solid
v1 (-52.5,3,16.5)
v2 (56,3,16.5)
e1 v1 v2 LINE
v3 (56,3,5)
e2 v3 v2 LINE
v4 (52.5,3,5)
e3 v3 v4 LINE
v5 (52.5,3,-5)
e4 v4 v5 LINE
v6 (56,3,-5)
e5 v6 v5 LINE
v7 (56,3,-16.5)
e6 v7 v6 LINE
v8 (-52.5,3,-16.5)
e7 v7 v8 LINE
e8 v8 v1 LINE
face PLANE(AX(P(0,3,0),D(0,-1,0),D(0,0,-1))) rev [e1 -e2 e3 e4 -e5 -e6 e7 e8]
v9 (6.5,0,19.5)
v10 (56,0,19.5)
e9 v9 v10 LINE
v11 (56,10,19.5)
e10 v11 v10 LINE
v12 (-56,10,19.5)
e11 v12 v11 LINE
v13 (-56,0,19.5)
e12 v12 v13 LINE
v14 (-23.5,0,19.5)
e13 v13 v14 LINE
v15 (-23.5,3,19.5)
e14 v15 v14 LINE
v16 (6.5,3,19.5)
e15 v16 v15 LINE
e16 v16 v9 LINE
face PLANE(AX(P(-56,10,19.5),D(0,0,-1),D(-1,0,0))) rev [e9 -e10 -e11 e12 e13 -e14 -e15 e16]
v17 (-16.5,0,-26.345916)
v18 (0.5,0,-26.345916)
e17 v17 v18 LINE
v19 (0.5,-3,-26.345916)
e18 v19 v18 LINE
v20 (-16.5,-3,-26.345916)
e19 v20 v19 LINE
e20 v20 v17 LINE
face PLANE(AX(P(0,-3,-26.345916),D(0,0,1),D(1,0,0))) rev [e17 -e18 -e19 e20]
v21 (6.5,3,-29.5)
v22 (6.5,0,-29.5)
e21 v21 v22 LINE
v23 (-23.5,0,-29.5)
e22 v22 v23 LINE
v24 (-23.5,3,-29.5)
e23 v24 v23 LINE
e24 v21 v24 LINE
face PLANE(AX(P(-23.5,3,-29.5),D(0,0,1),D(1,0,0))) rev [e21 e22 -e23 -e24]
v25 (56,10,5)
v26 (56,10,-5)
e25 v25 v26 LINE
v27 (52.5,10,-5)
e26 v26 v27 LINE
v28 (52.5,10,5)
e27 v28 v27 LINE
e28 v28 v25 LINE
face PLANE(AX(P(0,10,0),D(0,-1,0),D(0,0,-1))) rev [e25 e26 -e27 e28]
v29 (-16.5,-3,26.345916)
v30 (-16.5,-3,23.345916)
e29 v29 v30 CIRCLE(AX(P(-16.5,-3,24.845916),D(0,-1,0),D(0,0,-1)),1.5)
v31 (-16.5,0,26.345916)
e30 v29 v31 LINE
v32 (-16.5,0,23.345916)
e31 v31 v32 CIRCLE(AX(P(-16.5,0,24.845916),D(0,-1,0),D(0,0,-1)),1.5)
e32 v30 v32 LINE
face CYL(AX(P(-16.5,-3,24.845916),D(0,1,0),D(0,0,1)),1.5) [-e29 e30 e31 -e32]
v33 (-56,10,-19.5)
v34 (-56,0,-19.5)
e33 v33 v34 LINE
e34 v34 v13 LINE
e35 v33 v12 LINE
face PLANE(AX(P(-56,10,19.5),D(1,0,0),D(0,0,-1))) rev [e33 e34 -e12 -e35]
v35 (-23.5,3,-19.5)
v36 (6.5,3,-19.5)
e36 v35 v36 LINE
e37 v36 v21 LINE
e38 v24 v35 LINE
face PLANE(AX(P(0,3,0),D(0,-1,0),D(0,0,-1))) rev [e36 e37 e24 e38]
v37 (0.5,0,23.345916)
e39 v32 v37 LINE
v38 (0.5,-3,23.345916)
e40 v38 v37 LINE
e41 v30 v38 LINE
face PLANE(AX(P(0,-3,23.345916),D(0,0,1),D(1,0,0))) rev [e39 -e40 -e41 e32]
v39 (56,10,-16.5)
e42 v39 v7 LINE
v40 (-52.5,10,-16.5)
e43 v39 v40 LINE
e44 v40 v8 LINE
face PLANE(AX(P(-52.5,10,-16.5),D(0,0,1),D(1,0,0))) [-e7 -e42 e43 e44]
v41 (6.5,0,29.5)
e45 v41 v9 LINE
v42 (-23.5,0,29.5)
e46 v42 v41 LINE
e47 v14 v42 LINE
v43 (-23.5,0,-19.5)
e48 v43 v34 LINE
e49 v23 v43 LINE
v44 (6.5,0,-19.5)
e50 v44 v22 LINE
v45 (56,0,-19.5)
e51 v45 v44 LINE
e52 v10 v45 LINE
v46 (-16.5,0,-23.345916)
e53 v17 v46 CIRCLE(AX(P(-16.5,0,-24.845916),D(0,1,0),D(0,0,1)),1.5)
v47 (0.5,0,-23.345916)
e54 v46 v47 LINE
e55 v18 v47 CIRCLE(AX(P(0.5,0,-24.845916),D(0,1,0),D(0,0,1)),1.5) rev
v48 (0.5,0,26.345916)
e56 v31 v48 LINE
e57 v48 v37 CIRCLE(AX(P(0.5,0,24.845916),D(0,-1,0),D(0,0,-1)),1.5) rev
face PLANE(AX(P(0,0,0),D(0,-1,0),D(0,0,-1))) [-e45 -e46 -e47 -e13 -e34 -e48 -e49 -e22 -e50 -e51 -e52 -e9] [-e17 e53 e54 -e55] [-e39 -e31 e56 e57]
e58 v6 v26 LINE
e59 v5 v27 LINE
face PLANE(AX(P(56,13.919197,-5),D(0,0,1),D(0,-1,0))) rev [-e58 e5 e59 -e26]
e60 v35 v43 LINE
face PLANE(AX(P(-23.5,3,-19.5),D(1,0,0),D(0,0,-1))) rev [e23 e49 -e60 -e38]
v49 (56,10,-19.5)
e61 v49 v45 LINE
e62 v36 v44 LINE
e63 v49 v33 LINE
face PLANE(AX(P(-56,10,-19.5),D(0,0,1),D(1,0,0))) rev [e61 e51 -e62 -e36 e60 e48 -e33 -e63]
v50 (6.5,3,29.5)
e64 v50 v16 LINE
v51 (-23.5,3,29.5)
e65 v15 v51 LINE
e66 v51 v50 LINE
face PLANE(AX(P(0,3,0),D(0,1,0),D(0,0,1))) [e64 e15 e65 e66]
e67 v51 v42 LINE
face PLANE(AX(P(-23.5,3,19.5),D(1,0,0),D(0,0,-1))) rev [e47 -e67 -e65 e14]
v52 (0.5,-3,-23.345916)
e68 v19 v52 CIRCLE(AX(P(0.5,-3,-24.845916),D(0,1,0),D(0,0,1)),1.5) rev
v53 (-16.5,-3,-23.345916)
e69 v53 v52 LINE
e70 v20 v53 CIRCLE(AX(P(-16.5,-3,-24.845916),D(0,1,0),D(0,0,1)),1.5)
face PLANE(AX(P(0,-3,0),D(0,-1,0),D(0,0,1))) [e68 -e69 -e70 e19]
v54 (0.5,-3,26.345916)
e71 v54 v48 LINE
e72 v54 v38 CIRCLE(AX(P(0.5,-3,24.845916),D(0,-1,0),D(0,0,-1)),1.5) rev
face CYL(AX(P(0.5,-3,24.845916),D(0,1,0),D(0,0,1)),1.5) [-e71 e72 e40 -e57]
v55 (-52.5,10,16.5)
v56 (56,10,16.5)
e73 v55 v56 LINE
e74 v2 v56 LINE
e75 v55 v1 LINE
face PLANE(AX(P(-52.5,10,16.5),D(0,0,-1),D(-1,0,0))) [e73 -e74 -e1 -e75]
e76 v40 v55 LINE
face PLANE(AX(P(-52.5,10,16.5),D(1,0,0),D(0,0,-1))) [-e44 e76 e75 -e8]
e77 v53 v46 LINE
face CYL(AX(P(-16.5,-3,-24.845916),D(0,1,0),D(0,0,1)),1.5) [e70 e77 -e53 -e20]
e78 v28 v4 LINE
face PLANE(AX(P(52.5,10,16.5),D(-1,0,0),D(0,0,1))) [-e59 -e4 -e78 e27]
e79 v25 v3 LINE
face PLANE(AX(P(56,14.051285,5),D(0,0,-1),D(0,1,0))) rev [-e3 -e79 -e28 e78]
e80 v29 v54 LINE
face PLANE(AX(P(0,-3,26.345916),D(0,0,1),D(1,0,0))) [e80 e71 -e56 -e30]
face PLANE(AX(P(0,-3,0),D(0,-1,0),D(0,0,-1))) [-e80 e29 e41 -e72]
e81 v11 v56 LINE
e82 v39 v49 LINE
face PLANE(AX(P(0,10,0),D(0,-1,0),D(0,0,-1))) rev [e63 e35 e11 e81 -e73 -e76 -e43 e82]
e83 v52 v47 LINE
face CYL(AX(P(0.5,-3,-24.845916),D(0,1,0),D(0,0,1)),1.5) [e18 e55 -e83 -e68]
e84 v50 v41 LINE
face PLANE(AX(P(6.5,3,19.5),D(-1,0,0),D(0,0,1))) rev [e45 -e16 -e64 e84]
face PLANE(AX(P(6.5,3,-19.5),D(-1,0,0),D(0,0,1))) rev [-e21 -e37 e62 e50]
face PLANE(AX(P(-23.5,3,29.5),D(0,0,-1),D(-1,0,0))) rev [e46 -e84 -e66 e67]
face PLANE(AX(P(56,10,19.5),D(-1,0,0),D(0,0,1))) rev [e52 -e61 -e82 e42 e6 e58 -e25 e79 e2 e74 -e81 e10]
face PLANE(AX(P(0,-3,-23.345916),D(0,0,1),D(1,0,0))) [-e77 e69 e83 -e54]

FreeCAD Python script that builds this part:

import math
import FreeCAD as App
import Part
import Sketcher

V = App.Vector
Q = App.Units.Quantity

doc = App.newDocument("Part")
body = doc.addObject("PartDesign::Body", "Body")

sketch1 = body.newObject("Sketcher::SketchObject", "Sketch")
sketch1.AttachmentSupport = (doc.getObject("XZ_Plane"), [""])
sketch1.MapMode = "FlatFace"
sketch1.addGeometry(Part.LineSegment(V(-56, -20, 0), V(-56, 20, 0)), False)
sketch1.addGeometry(Part.LineSegment(V(-56, 20, 0), V(56, 20, 0)), False)
sketch1.addGeometry(Part.LineSegment(V(56, 20, 0), V(56, -20, 0)), False)
sketch1.addGeometry(Part.LineSegment(V(56, -20, 0), V(-56, -20, 0)), False)
sketch1.addGeometry(Part.LineSegment(V(52, 16, 0), V(-52, 16, 0)), False)
sketch1.addGeometry(Part.LineSegment(V(-52, 16, 0), V(-52, -16, 0)), False)
sketch1.addGeometry(Part.LineSegment(V(-52, -16, 0), V(52, -16, 0)), False)
sketch1.addGeometry(Part.LineSegment(V(52, -16, 0), V(52, 16, 0)), False)
sketch1.addConstraint(Sketcher.Constraint("Coincident", 0, 2, 1, 1))
sketch1.addConstraint(Sketcher.Constraint("Coincident", 1, 2, 2, 1))
sketch1.addConstraint(Sketcher.Constraint("Coincident", 2, 2, 3, 1))
sketch1.addConstraint(Sketcher.Constraint("Coincident", 3, 2, 0, 1))
sketch1.addConstraint(Sketcher.Constraint("Coincident", 4, 2, 5, 1))
sketch1.addConstraint(Sketcher.Constraint("Coincident", 5, 2, 6, 1))
sketch1.addConstraint(Sketcher.Constraint("Coincident", 6, 2, 7, 1))
sketch1.addConstraint(Sketcher.Constraint("Coincident", 7, 2, 4, 1))
sketch1.addConstraint(Sketcher.Constraint("Vertical", 0))
sketch1.addConstraint(Sketcher.Constraint("Horizontal", 1))
sketch1.addConstraint(Sketcher.Constraint("Vertical", 2))
sketch1.addConstraint(Sketcher.Constraint("Horizontal", 3))
sketch1.addConstraint(Sketcher.Constraint("Horizontal", 4))
sketch1.addConstraint(Sketcher.Constraint("Vertical", 5))
sketch1.addConstraint(Sketcher.Constraint("Horizontal", 6))
sketch1.addConstraint(Sketcher.Constraint("Vertical", 7))
sketch1.addConstraint(Sketcher.Constraint("Symmetric", 0, 2, 2, 2, -1, 1))
sketch1.addConstraint(Sketcher.Constraint("Symmetric", 4, 2, 6, 2, -1, 1))
sketch1.addConstraint(Sketcher.Constraint("DistanceX", 1, 1, 1, 2, Q("112 mm")))
sketch1.addConstraint(Sketcher.Constraint("DistanceX", 4, 2, 4, 1, Q("105 mm")))
sketch1.addConstraint(Sketcher.Constraint("DistanceY", 0, 1, 0, 2, Q("39 mm")))
sketch1.addConstraint(Sketcher.Constraint("DistanceY", 5, 2, 5, 1, Q("33 mm")))
pad1 = body.newObject("PartDesign::Pad", "Pad")
pad1.Profile = sketch1
pad1.Length = 10
pad1.Reversed = True

sketch2 = body.newObject("Sketcher::SketchObject", "Sketch001")
sketch2.AttachmentSupport = (doc.getObject("XZ_Plane"), [""])
sketch2.MapMode = "FlatFace"
sketch2.addGeometry(Part.LineSegment(V(-52, -16, 0), V(-52, 16, 0)), False)
sketch2.addGeometry(Part.LineSegment(V(-52, 16, 0), V(52, 16, 0)), False)
sketch2.addGeometry(Part.LineSegment(V(52, 16, 0), V(52, -16, 0)), False)
sketch2.addGeometry(Part.LineSegment(V(52, -16, 0), V(-52, -16, 0)), False)
sketch2.addConstraint(Sketcher.Constraint("Coincident", 0, 2, 1, 1))
sketch2.addConstraint(Sketcher.Constraint("Coincident", 1, 2, 2, 1))
sketch2.addConstraint(Sketcher.Constraint("Coincident", 2, 2, 3, 1))
sketch2.addConstraint(Sketcher.Constraint("Coincident", 3, 2, 0, 1))
sketch2.addConstraint(Sketcher.Constraint("Vertical", 0))
sketch2.addConstraint(Sketcher.Constraint("Horizontal", 1))
sketch2.addConstraint(Sketcher.Constraint("Vertical", 2))
sketch2.addConstraint(Sketcher.Constraint("Horizontal", 3))
sketch2.addConstraint(Sketcher.Constraint("Symmetric", 0, 2, 2, 2, -1, 1))
sketch2.addConstraint(Sketcher.Constraint("DistanceX", 1, 1, 1, 2, Q("105 mm")))
sketch2.addConstraint(Sketcher.Constraint("DistanceY", 0, 1, 0, 2, Q("33 mm")))
pad2 = body.newObject("PartDesign::Pad", "Pad001")
pad2.Profile = sketch2
pad2.Length = 3
pad2.Reversed = True

sketch3 = body.newObject("Sketcher::SketchObject", "Sketch002")
sketch3.AttachmentSupport = (doc.getObject("YZ_Plane"), [""])
sketch3.MapMode = "FlatFace"
sketch3.AttachmentOffset = App.Placement(V(0, 0, 52.5), App.Rotation())
sketch3.addGeometry(Part.LineSegment(V(14, -16, 0), V(3, -16, 0)), False)
sketch3.addGeometry(Part.LineSegment(V(3, -16, 0), V(3, -5, 0)), False)
sketch3.addGeometry(Part.LineSegment(V(3, -5, 0), V(14, -5, 0)), False)
sketch3.addGeometry(Part.LineSegment(V(14, -5, 0), V(14, -16, 0)), False)
sketch3.addGeometry(Part.LineSegment(V(14, 5, 0), V(3, 5, 0)), False)
sketch3.addGeometry(Part.LineSegment(V(3, 5, 0), V(3, 16, 0)), False)
sketch3.addGeometry(Part.LineSegment(V(3, 16, 0), V(14, 16, 0)), False)
sketch3.addGeometry(Part.LineSegment(V(14, 16, 0), V(14, 5, 0)), False)
sketch3.addConstraint(Sketcher.Constraint("Coincident", 0, 2, 1, 1))
sketch3.addConstraint(Sketcher.Constraint("Coincident", 1, 2, 2, 1))
sketch3.addConstraint(Sketcher.Constraint("Coincident", 2, 2, 3, 1))
sketch3.addConstraint(Sketcher.Constraint("Coincident", 3, 2, 0, 1))
sketch3.addConstraint(Sketcher.Constraint("Coincident", 4, 2, 5, 1))
sketch3.addConstraint(Sketcher.Constraint("Coincident", 5, 2, 6, 1))
sketch3.addConstraint(Sketcher.Constraint("Coincident", 6, 2, 7, 1))
sketch3.addConstraint(Sketcher.Constraint("Coincident", 7, 2, 4, 1))
sketch3.addConstraint(Sketcher.Constraint("Horizontal", 0))
sketch3.addConstraint(Sketcher.Constraint("Vertical", 1))
sketch3.addConstraint(Sketcher.Constraint("Horizontal", 2))
sketch3.addConstraint(Sketcher.Constraint("Vertical", 3))
sketch3.addConstraint(Sketcher.Constraint("Horizontal", 4))
sketch3.addConstraint(Sketcher.Constraint("Vertical", 5))
sketch3.addConstraint(Sketcher.Constraint("Horizontal", 6))
sketch3.addConstraint(Sketcher.Constraint("Vertical", 7))
sketch3.addConstraint(Sketcher.Constraint("Symmetric", 1, 2, 4, 2, -1))
sketch3.addConstraint(Sketcher.Constraint("Equal", 3, 5))
sketch3.addConstraint(Sketcher.Constraint("DistanceY", 1, 1, 1, 2, Q("11.5 mm")))
sketch3.addConstraint(Sketcher.Constraint("DistanceX", -1, 1, 0, 2, Q("3 mm")))
sketch3.addConstraint(Sketcher.Constraint("DistanceY", 1, 2, -1, 1, Q("5 mm")))
sketch3.addConstraint(Sketcher.Constraint("DistanceX", 0, 2, 0, 1, Q("10.919197 mm")))
sketch3.addConstraint(Sketcher.Constraint("DistanceX", 4, 2, 4, 1, Q("11.051285 mm")))
pocket1 = body.newObject("PartDesign::Pocket", "Pocket")
pocket1.Profile = sketch3
pocket1.Type = "ThroughAll"
pocket1.Reversed = True

sketch4 = body.newObject("Sketcher::SketchObject", "Sketch003")
sketch4.AttachmentSupport = (doc.getObject("XZ_Plane"), [""])
sketch4.MapMode = "FlatFace"
sketch4.addGeometry(Part.LineSegment(V(-24, -30, 0), V(-24, -20, 0)), False)
sketch4.addGeometry(Part.LineSegment(V(-24, -20, 0), V(6, -20, 0)), False)
sketch4.addGeometry(Part.LineSegment(V(6, -20, 0), V(6, -30, 0)), False)
sketch4.addGeometry(Part.LineSegment(V(6, -30, 0), V(-24, -30, 0)), False)
sketch4.addGeometry(Part.LineSegment(V(-24, 20, 0), V(-24, 30, 0)), False)
sketch4.addGeometry(Part.LineSegment(V(-24, 30, 0), V(6, 30, 0)), False)
sketch4.addGeometry(Part.LineSegment(V(6, 30, 0), V(6, 20, 0)), False)
sketch4.addGeometry(Part.LineSegment(V(6, 20, 0), V(-24, 20, 0)), False)
sketch4.addConstraint(Sketcher.Constraint("Coincident", 0, 2, 1, 1))
sketch4.addConstraint(Sketcher.Constraint("Coincident", 1, 2, 2, 1))
sketch4.addConstraint(Sketcher.Constraint("Coincident", 2, 2, 3, 1))
sketch4.addConstraint(Sketcher.Constraint("Coincident", 3, 2, 0, 1))
sketch4.addConstraint(Sketcher.Constraint("Coincident", 4, 2, 5, 1))
sketch4.addConstraint(Sketcher.Constraint("Coincident", 5, 2, 6, 1))
sketch4.addConstraint(Sketcher.Constraint("Coincident", 6, 2, 7, 1))
sketch4.addConstraint(Sketcher.Constraint("Coincident", 7, 2, 4, 1))
sketch4.addConstraint(Sketcher.Constraint("Vertical", 0))
sketch4.addConstraint(Sketcher.Constraint("Horizontal", 1))
sketch4.addConstraint(Sketcher.Constraint("Vertical", 2))
sketch4.addConstraint(Sketcher.Constraint("Horizontal", 3))
sketch4.addConstraint(Sketcher.Constraint("Vertical", 4))
sketch4.addConstraint(Sketcher.Constraint("Horizontal", 5))
sketch4.addConstraint(Sketcher.Constraint("Vertical", 6))
sketch4.addConstraint(Sketcher.Constraint("Horizontal", 7))
sketch4.addConstraint(Sketcher.Constraint("Symmetric", 3, 2, 4, 2, -1))
sketch4.addConstraint(Sketcher.Constraint("Symmetric", 1, 2, 6, 2, -1))
sketch4.addConstraint(Sketcher.Constraint("DistanceX", 1, 1, 1, 2, Q("30 mm")))
sketch4.addConstraint(Sketcher.Constraint("DistanceY", 0, 1, 0, 2, Q("10 mm")))
sketch4.addConstraint(Sketcher.Constraint("DistanceY", 0, 2, 4, 2, Q("49 mm")))
sketch4.addConstraint(Sketcher.Constraint("DistanceX", 0, 2, -1, 1, Q("23.5 mm")))
pad3 = body.newObject("PartDesign::Pad", "Pad002")
pad3.Profile = sketch4
pad3.Length = 3
pad3.Reversed = True

sketch5 = body.newObject("Sketcher::SketchObject", "Sketch004")
sketch5.AttachmentSupport = (doc.getObject("XZ_Plane"), [""])
sketch5.MapMode = "FlatFace"
sketch5.addGeometry(Part.LineSegment(V(-16.5, 23.3, 0), V(0.5, 23.3, 0)), False)
sketch5.addGeometry(Part.ArcOfCircle(Part.Circle(V(0.5, 24.8, 0), V(0, 0, 1), 1.5), math.radians(-90), math.radians(90)), False)
sketch5.addGeometry(Part.LineSegment(V(0.5, 26.3, 0), V(-16.5, 26.3, 0)), False)
sketch5.addGeometry(Part.ArcOfCircle(Part.Circle(V(-16.5, 24.8, 0), V(0, 0, 1), 1.5), math.radians(90), math.radians(270)), False)
sketch5.addConstraint(Sketcher.Constraint("Tangent", 0, 2, 1, 1))
sketch5.addConstraint(Sketcher.Constraint("Tangent", 1, 2, 2, 1))
sketch5.addConstraint(Sketcher.Constraint("Tangent", 2, 2, 3, 1))
sketch5.addConstraint(Sketcher.Constraint("Tangent", 3, 2, 0, 1))
sketch5.addConstraint(Sketcher.Constraint("Horizontal", 0))
sketch5.addConstraint(Sketcher.Constraint("Horizontal", 2))
sketch5.addConstraint(Sketcher.Constraint("Radius", 1, Q("1.5 mm")))
sketch5.addConstraint(Sketcher.Constraint("DistanceX", 0, 1, 0, 2, Q("17 mm")))
sketch5.addConstraint(Sketcher.Constraint("DistanceX", -1, 1, 1, 3, Q("0.5 mm")))
sketch5.addConstraint(Sketcher.Constraint("DistanceY", -1, 1, 1, 3, Q("24.845916 mm")))
pad4 = body.newObject("PartDesign::Pad", "Pad003")
pad4.Profile = sketch5
pad4.Length = 3
doc.recompute()

mirrored = body.newObject("PartDesign::Mirrored", "Mirrored")
mirrored.Originals = [pad4]
mirrored.MirrorPlane = (doc.getObject("XY_Plane"), [""])
body.Tip = mirrored

doc.recompute()
